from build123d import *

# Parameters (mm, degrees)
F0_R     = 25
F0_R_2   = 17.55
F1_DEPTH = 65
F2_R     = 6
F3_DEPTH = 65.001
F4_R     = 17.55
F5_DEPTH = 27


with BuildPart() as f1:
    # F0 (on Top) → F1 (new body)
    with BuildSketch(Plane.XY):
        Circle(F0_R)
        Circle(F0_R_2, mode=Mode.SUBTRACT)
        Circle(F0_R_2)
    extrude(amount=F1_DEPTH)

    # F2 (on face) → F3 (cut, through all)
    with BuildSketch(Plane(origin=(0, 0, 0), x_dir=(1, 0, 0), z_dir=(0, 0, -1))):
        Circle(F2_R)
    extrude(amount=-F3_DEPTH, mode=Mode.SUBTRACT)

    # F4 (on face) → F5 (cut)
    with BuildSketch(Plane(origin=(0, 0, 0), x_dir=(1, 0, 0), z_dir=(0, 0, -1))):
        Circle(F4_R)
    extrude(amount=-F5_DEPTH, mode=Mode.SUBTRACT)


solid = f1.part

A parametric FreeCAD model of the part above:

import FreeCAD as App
import Part
import Sketcher
Q = App.Units.Quantity

doc = App.newDocument("Part")
params = doc.addObject("Spreadsheet::Sheet", "Params")
for row, (alias, value) in enumerate([
    ("sketch1_diameter", "50 mm"),
    ("pad1_length", "65 mm"),
    ("sketch2_diameter", "12 mm"),
    ("sketch3_diameter", "35.1 mm"),
    ("pocket2_length", "27 mm"),
], start=1):
    params.set(f"A{row}", alias)
    params.set(f"B{row}", "=" + value)
    params.setAlias(f"B{row}", alias)

body = doc.addObject("PartDesign::Body", "Body")

# Sketch on XY plane
sketch1 = body.newObject("Sketcher::SketchObject", "Sketch")
sketch1.AttachmentSupport = (doc.getObject("XY_Plane"), [""])
sketch1.MapMode = "FlatFace"
sketch1.addGeometry(Part.Circle(App.Vector(0, 0, 0), App.Vector(0, 0, 1), 25), False)
sketch1.addConstraint([
    Sketcher.Constraint("Coincident", 0, 3, -1, 1),
    Sketcher.Constraint("Diameter", 0, Q("50 mm")),
])
sketch1.setExpression("Constraints[1]", "Params.sketch1_diameter")
pad1 = body.newObject("PartDesign::Pad", "Pad")
pad1.Profile = sketch1
pad1.setExpression("Length", "Params.pad1_length")

# Sketch on XY plane
sketch2 = body.newObject("Sketcher::SketchObject", "Sketch001")
sketch2.AttachmentSupport = (doc.getObject("XY_Plane"), [""])
sketch2.MapMode = "FlatFace"
sketch2.addGeometry(Part.Circle(App.Vector(0, 0, 0), App.Vector(0, 0, 1), 6), False)
sketch2.addConstraint([
    Sketcher.Constraint("Coincident", 0, 3, -1, 1),
    Sketcher.Constraint("Diameter", 0, Q("12 mm")),
])
sketch2.setExpression("Constraints[1]", "Params.sketch2_diameter")
pocket1 = body.newObject("PartDesign::Pocket", "Pocket")
pocket1.Profile = sketch2
pocket1.Type = "ThroughAll"
pocket1.Reversed = True

# Sketch on XY plane
sketch3 = body.newObject("Sketcher::SketchObject", "Sketch002")
sketch3.AttachmentSupport = (doc.getObject("XY_Plane"), [""])
sketch3.MapMode = "FlatFace"
sketch3.addGeometry(Part.Circle(App.Vector(0, 0, 0), App.Vector(0, 0, 1), 17.55), False)
sketch3.addConstraint([
    Sketcher.Constraint("Coincident", 0, 3, -1, 1),
    Sketcher.Constraint("Diameter", 0, Q("35.1 mm")),
])
sketch3.setExpression("Constraints[1]", "Params.sketch3_diameter")
pocket2 = body.newObject("PartDesign::Pocket", "Pocket001")
pocket2.Profile = sketch3
pocket2.setExpression("Length", "Params.pocket2_length")
pocket2.Reversed = True

doc.recompute()
